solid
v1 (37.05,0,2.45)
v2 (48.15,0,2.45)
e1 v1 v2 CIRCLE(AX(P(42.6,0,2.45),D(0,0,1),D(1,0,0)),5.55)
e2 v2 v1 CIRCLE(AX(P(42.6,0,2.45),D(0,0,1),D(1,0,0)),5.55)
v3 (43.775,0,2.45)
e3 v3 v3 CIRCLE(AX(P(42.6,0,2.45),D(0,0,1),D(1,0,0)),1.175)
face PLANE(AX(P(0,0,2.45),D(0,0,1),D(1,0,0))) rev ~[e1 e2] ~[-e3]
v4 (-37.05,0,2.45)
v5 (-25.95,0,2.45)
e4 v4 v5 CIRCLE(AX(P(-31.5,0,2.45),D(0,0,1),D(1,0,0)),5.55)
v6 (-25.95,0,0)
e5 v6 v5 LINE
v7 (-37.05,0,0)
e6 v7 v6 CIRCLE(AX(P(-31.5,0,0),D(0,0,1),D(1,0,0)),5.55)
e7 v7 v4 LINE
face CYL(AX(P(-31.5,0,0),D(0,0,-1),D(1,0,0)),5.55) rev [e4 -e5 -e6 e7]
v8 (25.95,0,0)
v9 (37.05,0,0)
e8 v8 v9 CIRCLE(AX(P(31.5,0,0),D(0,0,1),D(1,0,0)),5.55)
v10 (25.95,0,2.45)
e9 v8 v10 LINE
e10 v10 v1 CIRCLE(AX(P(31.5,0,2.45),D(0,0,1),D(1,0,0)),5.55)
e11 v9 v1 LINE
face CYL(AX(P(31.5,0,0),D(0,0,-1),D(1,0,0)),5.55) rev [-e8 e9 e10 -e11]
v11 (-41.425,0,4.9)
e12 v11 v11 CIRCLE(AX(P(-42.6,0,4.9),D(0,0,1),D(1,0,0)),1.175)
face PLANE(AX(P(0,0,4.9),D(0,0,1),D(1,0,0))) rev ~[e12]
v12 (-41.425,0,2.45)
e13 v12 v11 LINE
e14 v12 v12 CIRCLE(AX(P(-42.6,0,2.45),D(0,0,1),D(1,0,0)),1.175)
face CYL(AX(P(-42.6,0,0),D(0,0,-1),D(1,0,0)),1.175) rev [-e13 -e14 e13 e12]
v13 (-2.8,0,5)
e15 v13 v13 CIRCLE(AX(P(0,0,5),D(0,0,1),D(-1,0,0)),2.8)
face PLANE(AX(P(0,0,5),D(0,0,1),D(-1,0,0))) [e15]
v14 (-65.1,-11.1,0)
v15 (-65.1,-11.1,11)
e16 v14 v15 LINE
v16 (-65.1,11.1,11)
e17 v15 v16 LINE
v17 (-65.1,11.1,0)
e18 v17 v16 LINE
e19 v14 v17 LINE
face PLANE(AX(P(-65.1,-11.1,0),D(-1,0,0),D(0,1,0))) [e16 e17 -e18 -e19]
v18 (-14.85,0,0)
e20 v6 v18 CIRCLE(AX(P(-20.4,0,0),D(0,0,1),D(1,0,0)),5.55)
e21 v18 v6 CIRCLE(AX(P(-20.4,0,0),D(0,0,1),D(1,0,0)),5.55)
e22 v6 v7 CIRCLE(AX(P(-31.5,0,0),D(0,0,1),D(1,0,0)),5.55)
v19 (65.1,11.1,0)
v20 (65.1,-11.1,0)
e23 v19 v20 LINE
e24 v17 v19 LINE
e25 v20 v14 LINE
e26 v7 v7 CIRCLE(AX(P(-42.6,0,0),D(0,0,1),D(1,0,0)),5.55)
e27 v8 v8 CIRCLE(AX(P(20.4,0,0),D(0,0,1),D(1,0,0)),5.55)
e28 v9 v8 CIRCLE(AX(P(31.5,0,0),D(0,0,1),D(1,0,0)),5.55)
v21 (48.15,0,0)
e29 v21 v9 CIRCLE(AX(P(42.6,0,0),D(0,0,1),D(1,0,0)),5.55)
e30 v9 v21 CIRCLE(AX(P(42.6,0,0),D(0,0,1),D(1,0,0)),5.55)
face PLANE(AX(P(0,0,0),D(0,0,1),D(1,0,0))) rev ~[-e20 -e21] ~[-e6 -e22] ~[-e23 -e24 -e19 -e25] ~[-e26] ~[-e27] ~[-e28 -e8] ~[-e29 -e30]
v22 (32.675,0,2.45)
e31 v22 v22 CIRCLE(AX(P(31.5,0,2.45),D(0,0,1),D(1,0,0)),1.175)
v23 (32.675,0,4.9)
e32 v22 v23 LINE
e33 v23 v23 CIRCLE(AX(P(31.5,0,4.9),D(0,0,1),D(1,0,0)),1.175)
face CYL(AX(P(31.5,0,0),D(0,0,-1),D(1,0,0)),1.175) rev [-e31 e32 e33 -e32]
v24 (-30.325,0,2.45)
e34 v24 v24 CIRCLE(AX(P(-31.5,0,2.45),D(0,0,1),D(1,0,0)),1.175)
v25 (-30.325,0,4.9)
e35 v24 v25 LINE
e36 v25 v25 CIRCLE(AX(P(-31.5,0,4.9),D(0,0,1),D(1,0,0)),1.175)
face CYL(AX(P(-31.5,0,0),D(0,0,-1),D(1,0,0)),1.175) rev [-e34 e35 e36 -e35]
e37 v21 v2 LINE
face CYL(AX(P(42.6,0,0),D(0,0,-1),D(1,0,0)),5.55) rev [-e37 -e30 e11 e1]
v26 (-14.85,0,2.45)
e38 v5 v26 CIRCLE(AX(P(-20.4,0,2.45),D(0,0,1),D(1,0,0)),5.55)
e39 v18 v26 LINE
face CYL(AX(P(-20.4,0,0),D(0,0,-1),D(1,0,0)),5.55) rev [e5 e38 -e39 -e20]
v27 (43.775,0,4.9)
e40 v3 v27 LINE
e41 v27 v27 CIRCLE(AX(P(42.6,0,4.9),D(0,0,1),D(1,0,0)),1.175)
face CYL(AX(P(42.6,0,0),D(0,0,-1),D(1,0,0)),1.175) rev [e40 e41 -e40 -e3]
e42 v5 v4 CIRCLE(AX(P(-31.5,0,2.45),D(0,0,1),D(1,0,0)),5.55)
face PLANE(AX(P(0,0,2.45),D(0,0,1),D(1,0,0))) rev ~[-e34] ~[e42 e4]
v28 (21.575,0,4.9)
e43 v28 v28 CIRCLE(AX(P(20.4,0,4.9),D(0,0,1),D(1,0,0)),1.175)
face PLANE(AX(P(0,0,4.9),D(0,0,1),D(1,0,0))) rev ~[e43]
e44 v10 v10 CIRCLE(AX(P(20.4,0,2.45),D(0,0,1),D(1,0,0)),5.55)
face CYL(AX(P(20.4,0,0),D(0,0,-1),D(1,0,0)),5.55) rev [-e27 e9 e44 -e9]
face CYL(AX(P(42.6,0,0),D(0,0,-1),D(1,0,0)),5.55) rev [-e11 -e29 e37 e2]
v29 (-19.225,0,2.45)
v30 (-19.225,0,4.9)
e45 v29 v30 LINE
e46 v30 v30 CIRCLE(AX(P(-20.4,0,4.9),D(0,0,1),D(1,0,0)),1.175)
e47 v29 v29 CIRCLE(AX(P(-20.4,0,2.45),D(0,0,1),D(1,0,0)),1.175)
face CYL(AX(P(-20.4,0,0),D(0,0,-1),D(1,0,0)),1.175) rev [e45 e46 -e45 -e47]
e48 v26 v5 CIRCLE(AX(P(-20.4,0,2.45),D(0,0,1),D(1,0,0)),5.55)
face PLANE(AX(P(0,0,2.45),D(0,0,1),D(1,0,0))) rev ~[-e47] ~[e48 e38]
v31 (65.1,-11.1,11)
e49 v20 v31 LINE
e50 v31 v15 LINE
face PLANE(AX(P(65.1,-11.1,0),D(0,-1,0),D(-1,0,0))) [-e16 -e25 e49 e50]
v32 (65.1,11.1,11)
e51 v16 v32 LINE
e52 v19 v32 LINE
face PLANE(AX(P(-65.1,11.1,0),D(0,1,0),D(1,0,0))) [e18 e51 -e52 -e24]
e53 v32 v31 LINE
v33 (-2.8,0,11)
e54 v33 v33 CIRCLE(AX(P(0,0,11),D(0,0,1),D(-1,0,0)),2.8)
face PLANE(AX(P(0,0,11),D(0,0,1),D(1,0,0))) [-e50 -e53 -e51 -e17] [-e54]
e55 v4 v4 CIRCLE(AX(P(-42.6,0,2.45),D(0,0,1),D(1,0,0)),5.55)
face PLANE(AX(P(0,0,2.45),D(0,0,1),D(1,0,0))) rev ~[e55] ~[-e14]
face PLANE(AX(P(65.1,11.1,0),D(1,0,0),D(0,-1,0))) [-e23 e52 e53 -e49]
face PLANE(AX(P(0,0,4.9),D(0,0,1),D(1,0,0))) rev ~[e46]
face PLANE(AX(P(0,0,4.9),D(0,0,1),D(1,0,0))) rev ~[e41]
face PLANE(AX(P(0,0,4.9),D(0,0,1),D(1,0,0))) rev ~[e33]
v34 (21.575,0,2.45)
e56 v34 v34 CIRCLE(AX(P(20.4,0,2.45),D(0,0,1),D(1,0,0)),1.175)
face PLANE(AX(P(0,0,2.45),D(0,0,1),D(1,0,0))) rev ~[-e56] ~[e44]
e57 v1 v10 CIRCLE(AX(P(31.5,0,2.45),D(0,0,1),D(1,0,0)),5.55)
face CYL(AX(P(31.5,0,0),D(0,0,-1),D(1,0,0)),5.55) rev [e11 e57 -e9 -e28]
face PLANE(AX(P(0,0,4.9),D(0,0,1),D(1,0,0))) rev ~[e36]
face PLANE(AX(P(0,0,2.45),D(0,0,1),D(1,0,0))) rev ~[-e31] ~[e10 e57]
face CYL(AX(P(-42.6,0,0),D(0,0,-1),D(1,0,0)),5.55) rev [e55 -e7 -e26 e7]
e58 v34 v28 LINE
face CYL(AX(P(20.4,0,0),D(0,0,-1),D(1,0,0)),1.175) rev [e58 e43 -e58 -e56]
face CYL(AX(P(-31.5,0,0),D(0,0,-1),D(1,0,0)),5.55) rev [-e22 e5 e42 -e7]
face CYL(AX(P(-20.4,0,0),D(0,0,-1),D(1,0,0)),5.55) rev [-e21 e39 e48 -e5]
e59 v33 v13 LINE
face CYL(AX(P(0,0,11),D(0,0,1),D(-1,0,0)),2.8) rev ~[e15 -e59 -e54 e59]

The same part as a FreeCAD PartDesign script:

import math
import FreeCAD as App
import Part
import Sketcher

doc = App.newDocument("Part")
body = doc.addObject("PartDesign::Body", "Body")

# Sketch on XY plane
sketch1 = body.newObject("Sketcher::SketchObject", "Sketch")
sketch1.AttachmentSupport = (doc.getObject("XY_Plane"), [""])
sketch1.MapMode = "FlatFace"
sketch1.addGeometry([
    Part.LineSegment(App.Vector(-65, -11, 0), App.Vector(65, -11, 0)),
    Part.LineSegment(App.Vector(65, -11, 0), App.Vector(65, 11, 0)),
    Part.LineSegment(App.Vector(65, 11, 0), App.Vector(-65, 11, 0)),
    Part.LineSegment(App.Vector(-65, 11, 0), App.Vector(-65, -11, 0)),
], False)
sketch1.addConstraint([
    Sketcher.Constraint("Coincident", 0, 2, 1, 1),
    Sketcher.Constraint("Coincident", 1, 2, 2, 1),
    Sketcher.Constraint("Coincident", 2, 2, 3, 1),
    Sketcher.Constraint("Coincident", 3, 2, 0, 1),
    Sketcher.Constraint("Horizontal", 0),
    Sketcher.Constraint("Vertical", 1),
    Sketcher.Constraint("Horizontal", 2),
    Sketcher.Constraint("Vertical", 3),
    Sketcher.Constraint("Symmetric", 0, 2, 2, 2, -1, 1),
    Sketcher.Constraint("DistanceY", 1, 1, 1, 2, 22.2),
    Sketcher.Constraint("DistanceX", 0, 1, 0, 2, 130.2),
])
pad1 = body.newObject("PartDesign::Pad", "Pad")
pad1.Profile = sketch1
pad1.Length = 11

# Sketch on XY plane
sketch2 = body.newObject("Sketcher::SketchObject", "Sketch001")
sketch2.AttachmentSupport = (doc.getObject("XY_Plane"), [""])
sketch2.MapMode = "FlatFace"
sketch2.addGeometry([
    Part.Circle(App.Vector(20.4, 0, 0), App.Vector(0, 0, 1), 5.5),  # 0
    Part.Circle(App.Vector(20.4, 0, 0), App.Vector(0, 0, 1), 1.2),  # 1
    Part.Circle(App.Vector(42.6, 0, 0), App.Vector(0, 0, 1), 5.5),  # 2
    Part.Circle(App.Vector(42.6, 0, 0), App.Vector(0, 0, 1), 1.2),  # 3
    Part.ArcOfCircle(Part.Circle(App.Vector(31.5, 0, 0), App.Vector(0, 0, 1), 5.5), math.radians(0), math.radians(180)),  # 4
    Part.ArcOfCircle(Part.Circle(App.Vector(31.5, 0, 0), App.Vector(0, 0, 1), 5.5), math.radians(180), math.radians(360)),  # 5
    Part.Circle(App.Vector(31.5, 0, 0), App.Vector(0, 0, 1), 1.2),  # 6
    Part.Circle(App.Vector(-20.4, 0, 0), App.Vector(0, 0, 1), 5.5),  # 7
    Part.Circle(App.Vector(-20.4, 0, 0), App.Vector(0, 0, 1), 1.2),  # 8
    Part.Circle(App.Vector(-42.6, 0, 0), App.Vector(0, 0, 1), 5.5),  # 9
    Part.Circle(App.Vector(-42.6, 0, 0), App.Vector(0, 0, 1), 1.2),  # 10
    Part.ArcOfCircle(Part.Circle(App.Vector(-31.5, 0, 0), App.Vector(0, 0, 1), 5.5), math.radians(180), math.radians(360)),  # 11
    Part.ArcOfCircle(Part.Circle(App.Vector(-31.5, 0, 0), App.Vector(0, 0, 1), 5.5), math.radians(0), math.radians(180)),  # 12
    Part.Circle(App.Vector(-31.5, 0, 0), App.Vector(0, 0, 1), 1.2),  # 13
], False)
sketch2.addConstraint([
    Sketcher.Constraint("Tangent", 4, 1, 5, 2),
    Sketcher.Constraint("Coincident", 5, 1, 4, 2),
    Sketcher.Constraint("Tangent", 11, 1, 12, 2),
    Sketcher.Constraint("Coincident", 12, 1, 11, 2),
    Sketcher.Constraint("Coincident", 1, 3, 0, 3),
    Sketcher.Constraint("Coincident", 3, 3, 2, 3),
    Sketcher.Constraint("Coincident", 6, 3, 4, 3),
    Sketcher.Constraint("Coincident", 8, 3, 7, 3),
    Sketcher.Constraint("Coincident", 10, 3, 9, 3),
    Sketcher.Constraint("Coincident", 13, 3, 11, 3),
    Sketcher.Constraint("Equal", 0, 2),
    Sketcher.Constraint("Equal", 1, 3),
    Sketcher.Constraint("Equal", 2, 4),
    Sketcher.Constraint("Equal", 3, 6),
    Sketcher.Constraint("Equal", 5, 7),
    Sketcher.Constraint("Equal", 6, 8),
    Sketcher.Constraint("Equal", 7, 9),
    Sketcher.Constraint("Equal", 8, 10),
    Sketcher.Constraint("Equal", 9, 11),
    Sketcher.Constraint("Equal", 10, 13),
    Sketcher.Constraint("Symmetric", 0, 3, 7, 3, -1, 1),
    Sketcher.Constraint("Symmetric", 2, 3, 9, 3, -1, 1),
    Sketcher.Constraint("Symmetric", 4, 3, 11, 3, -1, 1),
    Sketcher.Constraint("PointOnObject", 0, 3, -1),
    Sketcher.Constraint("PointOnObject", 2, 3, -1),
    Sketcher.Constraint("PointOnObject", 4, 3, -1),
    Sketcher.Constraint("PointOnObject", 4, 1, -1),
    Sketcher.Constraint("PointOnObject", 5, 1, -1),
    Sketcher.Constraint("PointOnObject", 11, 1, -1),
    Sketcher.Constraint("PointOnObject", 12, 1, -1),
    Sketcher.Constraint("Diameter", 0, 11.1),
    Sketcher.Constraint("Diameter", 1, 2.35),
    Sketcher.Constraint("DistanceX", -1, 1, 0, 3, 20.4),
    Sketcher.Constraint("DistanceX", -1, 1, 2, 3, 42.6),
    Sketcher.Constraint("DistanceX", -1, 1, 4, 3, 31.5),
])
pocket1 = body.newObject("PartDesign::Pocket", "Pocket")
pocket1.Profile = sketch2
pocket1.Length = 2.45
pocket1.Reversed = True

# Sketch on XY plane
sketch3 = body.newObject("Sketcher::SketchObject", "Sketch002")
sketch3.AttachmentSupport = (doc.getObject("XY_Plane"), [""])
sketch3.MapMode = "FlatFace"
sketch3.addGeometry([
    Part.Circle(App.Vector(20.4, 0, 0), App.Vector(0, 0, 1), 1.2),  # 0
    Part.Circle(App.Vector(-20.4, 0, 0), App.Vector(0, 0, 1), 1.2),  # 1
    Part.Circle(App.Vector(31.5, 0, 0), App.Vector(0, 0, 1), 1.2),  # 2
    Part.Circle(App.Vector(-31.5, 0, 0), App.Vector(0, 0, 1), 1.2),  # 3
    Part.Circle(App.Vector(42.6, 0, 0), App.Vector(0, 0, 1), 1.2),  # 4
    Part.Circle(App.Vector(-42.6, 0, 0), App.Vector(0, 0, 1), 1.2),  # 5
], False)
sketch3.addConstraint([
    Sketcher.Constraint("Equal", 0, 1),
    Sketcher.Constraint("Equal", 1, 2),
    Sketcher.Constraint("Equal", 2, 3),
    Sketcher.Constraint("Equal", 3, 4),
    Sketcher.Constraint("Equal", 4, 5),
    Sketcher.Constraint("Symmetric", 0, 3, 1, 3, -1, 1),
    Sketcher.Constraint("Symmetric", 2, 3, 3, 3, -1, 1),
    Sketcher.Constraint("Symmetric", 4, 3, 5, 3, -1, 1),
    Sketcher.Constraint("PointOnObject", 0, 3, -1),
    Sketcher.Constraint("PointOnObject", 2, 3, -1),
    Sketcher.Constraint("PointOnObject", 4, 3, -1),
    Sketcher.Constraint("Diameter", 0, 2.35),
    Sketcher.Constraint("DistanceX", -1, 1, 0, 3, 20.4),
    Sketcher.Constraint("DistanceX", -1, 1, 2, 3, 31.5),
    Sketcher.Constraint("DistanceX", -1, 1, 4, 3, 42.6),
])
pocket2 = body.newObject("PartDesign::Pocket", "Pocket001")
pocket2.Profile = sketch3
pocket2.Length = 4.9
pocket2.Reversed = True

# Sketch on XY plane
sketch4 = body.newObject("Sketcher::SketchObject", "Sketch003")
sketch4.AttachmentSupport = (doc.getObject("XY_Plane"), [""])
sketch4.MapMode = "FlatFace"
sketch4.AttachmentOffset = App.Placement(App.Vector(0, 0, 11), App.Rotation())
sketch4.addGeometry(Part.Circle(App.Vector(0, 0, 0), App.Vector(0, 0, 1), 2.8), False)
sketch4.addConstraint([
    Sketcher.Constraint("Coincident", 0, 3, -1, 1),
    Sketcher.Constraint("Diameter", 0, 5.6),
])
pocket3 = body.newObject("PartDesign::Pocket", "Pocket002")
pocket3.Profile = sketch4
pocket3.Length = 6

doc.recompute()
